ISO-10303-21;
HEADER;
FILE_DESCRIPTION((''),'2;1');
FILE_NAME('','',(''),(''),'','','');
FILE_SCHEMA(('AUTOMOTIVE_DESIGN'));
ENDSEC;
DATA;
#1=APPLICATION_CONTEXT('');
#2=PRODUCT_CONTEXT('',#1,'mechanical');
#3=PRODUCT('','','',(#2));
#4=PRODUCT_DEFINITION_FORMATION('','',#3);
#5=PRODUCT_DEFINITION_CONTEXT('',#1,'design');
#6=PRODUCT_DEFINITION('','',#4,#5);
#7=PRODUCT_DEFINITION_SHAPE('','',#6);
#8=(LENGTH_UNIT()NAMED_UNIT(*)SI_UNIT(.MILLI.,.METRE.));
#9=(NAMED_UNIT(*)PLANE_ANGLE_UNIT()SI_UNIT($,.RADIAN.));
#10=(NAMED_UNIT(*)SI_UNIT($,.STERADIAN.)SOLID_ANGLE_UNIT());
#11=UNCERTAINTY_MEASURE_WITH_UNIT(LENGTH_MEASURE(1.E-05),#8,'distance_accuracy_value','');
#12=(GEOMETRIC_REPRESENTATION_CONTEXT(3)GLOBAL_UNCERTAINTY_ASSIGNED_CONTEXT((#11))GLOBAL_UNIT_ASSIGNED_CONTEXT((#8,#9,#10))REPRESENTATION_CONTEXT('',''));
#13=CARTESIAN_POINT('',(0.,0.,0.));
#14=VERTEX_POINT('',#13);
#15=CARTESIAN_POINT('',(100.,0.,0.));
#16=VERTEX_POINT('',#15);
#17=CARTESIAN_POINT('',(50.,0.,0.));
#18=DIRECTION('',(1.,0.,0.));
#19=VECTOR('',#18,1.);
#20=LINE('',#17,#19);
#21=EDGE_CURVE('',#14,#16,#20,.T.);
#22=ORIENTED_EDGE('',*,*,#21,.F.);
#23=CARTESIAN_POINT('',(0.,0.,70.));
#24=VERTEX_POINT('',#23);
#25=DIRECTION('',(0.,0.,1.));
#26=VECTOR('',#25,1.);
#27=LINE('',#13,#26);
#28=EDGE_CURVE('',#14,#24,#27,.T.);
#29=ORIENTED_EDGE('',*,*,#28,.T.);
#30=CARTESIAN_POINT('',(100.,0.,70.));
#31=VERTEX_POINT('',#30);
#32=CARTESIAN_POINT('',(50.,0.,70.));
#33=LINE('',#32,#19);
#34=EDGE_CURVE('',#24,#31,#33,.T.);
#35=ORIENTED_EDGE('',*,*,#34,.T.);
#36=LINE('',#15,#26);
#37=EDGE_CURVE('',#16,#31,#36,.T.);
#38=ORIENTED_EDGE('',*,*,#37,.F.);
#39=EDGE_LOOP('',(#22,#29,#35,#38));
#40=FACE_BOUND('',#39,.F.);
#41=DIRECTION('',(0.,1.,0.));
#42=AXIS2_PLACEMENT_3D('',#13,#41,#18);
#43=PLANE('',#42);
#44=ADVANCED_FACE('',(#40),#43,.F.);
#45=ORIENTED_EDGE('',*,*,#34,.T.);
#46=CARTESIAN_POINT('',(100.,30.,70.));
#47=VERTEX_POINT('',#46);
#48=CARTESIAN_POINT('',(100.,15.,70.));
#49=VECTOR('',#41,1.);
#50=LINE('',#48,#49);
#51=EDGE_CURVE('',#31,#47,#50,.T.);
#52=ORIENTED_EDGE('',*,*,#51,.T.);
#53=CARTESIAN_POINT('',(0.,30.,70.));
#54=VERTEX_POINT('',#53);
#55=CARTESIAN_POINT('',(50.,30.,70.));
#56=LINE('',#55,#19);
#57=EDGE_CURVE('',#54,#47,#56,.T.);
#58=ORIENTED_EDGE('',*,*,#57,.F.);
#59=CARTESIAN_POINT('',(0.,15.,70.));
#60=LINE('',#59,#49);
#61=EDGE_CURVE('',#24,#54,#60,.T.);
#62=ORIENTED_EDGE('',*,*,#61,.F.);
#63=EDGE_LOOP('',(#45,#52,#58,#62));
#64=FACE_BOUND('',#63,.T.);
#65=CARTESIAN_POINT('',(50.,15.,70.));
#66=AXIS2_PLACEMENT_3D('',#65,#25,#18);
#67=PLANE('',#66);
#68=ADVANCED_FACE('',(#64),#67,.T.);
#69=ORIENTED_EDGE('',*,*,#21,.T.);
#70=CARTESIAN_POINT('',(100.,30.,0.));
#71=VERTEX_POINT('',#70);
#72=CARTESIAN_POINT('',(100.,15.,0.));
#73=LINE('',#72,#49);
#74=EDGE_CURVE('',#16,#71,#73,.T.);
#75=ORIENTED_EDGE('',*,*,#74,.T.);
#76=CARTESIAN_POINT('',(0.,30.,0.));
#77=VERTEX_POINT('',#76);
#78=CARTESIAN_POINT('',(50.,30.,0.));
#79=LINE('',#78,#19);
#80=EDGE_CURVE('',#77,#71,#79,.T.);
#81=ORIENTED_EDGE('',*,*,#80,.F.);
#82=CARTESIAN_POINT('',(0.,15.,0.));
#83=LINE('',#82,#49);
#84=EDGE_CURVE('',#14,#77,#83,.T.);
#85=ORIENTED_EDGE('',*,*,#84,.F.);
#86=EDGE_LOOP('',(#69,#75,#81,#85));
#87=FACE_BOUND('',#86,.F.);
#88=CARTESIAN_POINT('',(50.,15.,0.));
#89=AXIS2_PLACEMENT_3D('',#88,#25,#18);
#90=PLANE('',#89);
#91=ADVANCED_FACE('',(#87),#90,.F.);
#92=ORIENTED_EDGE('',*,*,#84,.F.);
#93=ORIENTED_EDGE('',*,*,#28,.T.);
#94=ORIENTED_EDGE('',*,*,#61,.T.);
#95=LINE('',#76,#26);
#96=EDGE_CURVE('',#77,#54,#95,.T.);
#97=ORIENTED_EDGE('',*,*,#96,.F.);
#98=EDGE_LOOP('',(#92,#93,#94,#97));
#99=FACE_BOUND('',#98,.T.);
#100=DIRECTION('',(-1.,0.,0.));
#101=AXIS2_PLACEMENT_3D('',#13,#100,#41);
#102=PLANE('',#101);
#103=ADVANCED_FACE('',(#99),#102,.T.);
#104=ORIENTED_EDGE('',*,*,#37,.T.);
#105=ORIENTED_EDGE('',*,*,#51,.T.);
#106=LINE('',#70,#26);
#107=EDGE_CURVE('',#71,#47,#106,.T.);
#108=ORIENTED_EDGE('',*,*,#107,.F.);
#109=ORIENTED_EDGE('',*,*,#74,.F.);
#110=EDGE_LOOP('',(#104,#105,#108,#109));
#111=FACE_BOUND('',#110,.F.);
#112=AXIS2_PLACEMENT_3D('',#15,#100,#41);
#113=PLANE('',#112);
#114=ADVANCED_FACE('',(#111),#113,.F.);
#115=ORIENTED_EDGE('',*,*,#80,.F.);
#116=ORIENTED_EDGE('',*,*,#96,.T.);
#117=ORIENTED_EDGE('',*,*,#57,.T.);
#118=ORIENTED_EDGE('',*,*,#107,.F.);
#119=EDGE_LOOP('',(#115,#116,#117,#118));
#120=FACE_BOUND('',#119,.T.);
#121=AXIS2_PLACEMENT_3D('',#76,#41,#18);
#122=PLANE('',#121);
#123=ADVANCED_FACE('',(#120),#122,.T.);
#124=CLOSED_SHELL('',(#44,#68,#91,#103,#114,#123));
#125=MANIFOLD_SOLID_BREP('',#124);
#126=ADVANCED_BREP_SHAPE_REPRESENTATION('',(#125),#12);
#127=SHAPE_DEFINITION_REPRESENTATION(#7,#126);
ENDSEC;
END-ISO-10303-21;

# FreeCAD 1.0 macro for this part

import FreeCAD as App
import Part
import Sketcher

doc = App.newDocument("Part")
body = doc.addObject("PartDesign::Body", "Body")

sketch1 = body.newObject("Sketcher::SketchObject", "Sketch")
sketch1.AttachmentSupport = (doc.getObject("XY_Plane"), [""])
sketch1.MapMode = "FlatFace"
sketch1.addGeometry([
    Part.LineSegment(App.Vector(0, 30, 0), App.Vector(0, 0, 0)),
    Part.LineSegment(App.Vector(0, 0, 0), App.Vector(100, 0, 0)),
    Part.LineSegment(App.Vector(100, 0, 0), App.Vector(100, 30, 0)),
    Part.LineSegment(App.Vector(100, 30, 0), App.Vector(0, 30, 0)),
], False)
sketch1.addConstraint([
    Sketcher.Constraint("Coincident", 0, 2, 1, 1),
    Sketcher.Constraint("Coincident", 1, 2, 2, 1),
    Sketcher.Constraint("Coincident", 2, 2, 3, 1),
    Sketcher.Constraint("Coincident", 3, 2, 0, 1),
    Sketcher.Constraint("Vertical", 0),
    Sketcher.Constraint("Horizontal", 1),
    Sketcher.Constraint("Vertical", 2),
    Sketcher.Constraint("Horizontal", 3),
    Sketcher.Constraint("Coincident", 0, 2, -1, 1),
    Sketcher.Constraint("DistanceX", 1, 1, 1, 2, 100.0),
    Sketcher.Constraint("DistanceY", 0, 2, 0, 1, 30.0),
])
pad1 = body.newObject("PartDesign::Pad", "Pad")
pad1.Profile = sketch1
pad1.Length = 70

doc.recompute()
